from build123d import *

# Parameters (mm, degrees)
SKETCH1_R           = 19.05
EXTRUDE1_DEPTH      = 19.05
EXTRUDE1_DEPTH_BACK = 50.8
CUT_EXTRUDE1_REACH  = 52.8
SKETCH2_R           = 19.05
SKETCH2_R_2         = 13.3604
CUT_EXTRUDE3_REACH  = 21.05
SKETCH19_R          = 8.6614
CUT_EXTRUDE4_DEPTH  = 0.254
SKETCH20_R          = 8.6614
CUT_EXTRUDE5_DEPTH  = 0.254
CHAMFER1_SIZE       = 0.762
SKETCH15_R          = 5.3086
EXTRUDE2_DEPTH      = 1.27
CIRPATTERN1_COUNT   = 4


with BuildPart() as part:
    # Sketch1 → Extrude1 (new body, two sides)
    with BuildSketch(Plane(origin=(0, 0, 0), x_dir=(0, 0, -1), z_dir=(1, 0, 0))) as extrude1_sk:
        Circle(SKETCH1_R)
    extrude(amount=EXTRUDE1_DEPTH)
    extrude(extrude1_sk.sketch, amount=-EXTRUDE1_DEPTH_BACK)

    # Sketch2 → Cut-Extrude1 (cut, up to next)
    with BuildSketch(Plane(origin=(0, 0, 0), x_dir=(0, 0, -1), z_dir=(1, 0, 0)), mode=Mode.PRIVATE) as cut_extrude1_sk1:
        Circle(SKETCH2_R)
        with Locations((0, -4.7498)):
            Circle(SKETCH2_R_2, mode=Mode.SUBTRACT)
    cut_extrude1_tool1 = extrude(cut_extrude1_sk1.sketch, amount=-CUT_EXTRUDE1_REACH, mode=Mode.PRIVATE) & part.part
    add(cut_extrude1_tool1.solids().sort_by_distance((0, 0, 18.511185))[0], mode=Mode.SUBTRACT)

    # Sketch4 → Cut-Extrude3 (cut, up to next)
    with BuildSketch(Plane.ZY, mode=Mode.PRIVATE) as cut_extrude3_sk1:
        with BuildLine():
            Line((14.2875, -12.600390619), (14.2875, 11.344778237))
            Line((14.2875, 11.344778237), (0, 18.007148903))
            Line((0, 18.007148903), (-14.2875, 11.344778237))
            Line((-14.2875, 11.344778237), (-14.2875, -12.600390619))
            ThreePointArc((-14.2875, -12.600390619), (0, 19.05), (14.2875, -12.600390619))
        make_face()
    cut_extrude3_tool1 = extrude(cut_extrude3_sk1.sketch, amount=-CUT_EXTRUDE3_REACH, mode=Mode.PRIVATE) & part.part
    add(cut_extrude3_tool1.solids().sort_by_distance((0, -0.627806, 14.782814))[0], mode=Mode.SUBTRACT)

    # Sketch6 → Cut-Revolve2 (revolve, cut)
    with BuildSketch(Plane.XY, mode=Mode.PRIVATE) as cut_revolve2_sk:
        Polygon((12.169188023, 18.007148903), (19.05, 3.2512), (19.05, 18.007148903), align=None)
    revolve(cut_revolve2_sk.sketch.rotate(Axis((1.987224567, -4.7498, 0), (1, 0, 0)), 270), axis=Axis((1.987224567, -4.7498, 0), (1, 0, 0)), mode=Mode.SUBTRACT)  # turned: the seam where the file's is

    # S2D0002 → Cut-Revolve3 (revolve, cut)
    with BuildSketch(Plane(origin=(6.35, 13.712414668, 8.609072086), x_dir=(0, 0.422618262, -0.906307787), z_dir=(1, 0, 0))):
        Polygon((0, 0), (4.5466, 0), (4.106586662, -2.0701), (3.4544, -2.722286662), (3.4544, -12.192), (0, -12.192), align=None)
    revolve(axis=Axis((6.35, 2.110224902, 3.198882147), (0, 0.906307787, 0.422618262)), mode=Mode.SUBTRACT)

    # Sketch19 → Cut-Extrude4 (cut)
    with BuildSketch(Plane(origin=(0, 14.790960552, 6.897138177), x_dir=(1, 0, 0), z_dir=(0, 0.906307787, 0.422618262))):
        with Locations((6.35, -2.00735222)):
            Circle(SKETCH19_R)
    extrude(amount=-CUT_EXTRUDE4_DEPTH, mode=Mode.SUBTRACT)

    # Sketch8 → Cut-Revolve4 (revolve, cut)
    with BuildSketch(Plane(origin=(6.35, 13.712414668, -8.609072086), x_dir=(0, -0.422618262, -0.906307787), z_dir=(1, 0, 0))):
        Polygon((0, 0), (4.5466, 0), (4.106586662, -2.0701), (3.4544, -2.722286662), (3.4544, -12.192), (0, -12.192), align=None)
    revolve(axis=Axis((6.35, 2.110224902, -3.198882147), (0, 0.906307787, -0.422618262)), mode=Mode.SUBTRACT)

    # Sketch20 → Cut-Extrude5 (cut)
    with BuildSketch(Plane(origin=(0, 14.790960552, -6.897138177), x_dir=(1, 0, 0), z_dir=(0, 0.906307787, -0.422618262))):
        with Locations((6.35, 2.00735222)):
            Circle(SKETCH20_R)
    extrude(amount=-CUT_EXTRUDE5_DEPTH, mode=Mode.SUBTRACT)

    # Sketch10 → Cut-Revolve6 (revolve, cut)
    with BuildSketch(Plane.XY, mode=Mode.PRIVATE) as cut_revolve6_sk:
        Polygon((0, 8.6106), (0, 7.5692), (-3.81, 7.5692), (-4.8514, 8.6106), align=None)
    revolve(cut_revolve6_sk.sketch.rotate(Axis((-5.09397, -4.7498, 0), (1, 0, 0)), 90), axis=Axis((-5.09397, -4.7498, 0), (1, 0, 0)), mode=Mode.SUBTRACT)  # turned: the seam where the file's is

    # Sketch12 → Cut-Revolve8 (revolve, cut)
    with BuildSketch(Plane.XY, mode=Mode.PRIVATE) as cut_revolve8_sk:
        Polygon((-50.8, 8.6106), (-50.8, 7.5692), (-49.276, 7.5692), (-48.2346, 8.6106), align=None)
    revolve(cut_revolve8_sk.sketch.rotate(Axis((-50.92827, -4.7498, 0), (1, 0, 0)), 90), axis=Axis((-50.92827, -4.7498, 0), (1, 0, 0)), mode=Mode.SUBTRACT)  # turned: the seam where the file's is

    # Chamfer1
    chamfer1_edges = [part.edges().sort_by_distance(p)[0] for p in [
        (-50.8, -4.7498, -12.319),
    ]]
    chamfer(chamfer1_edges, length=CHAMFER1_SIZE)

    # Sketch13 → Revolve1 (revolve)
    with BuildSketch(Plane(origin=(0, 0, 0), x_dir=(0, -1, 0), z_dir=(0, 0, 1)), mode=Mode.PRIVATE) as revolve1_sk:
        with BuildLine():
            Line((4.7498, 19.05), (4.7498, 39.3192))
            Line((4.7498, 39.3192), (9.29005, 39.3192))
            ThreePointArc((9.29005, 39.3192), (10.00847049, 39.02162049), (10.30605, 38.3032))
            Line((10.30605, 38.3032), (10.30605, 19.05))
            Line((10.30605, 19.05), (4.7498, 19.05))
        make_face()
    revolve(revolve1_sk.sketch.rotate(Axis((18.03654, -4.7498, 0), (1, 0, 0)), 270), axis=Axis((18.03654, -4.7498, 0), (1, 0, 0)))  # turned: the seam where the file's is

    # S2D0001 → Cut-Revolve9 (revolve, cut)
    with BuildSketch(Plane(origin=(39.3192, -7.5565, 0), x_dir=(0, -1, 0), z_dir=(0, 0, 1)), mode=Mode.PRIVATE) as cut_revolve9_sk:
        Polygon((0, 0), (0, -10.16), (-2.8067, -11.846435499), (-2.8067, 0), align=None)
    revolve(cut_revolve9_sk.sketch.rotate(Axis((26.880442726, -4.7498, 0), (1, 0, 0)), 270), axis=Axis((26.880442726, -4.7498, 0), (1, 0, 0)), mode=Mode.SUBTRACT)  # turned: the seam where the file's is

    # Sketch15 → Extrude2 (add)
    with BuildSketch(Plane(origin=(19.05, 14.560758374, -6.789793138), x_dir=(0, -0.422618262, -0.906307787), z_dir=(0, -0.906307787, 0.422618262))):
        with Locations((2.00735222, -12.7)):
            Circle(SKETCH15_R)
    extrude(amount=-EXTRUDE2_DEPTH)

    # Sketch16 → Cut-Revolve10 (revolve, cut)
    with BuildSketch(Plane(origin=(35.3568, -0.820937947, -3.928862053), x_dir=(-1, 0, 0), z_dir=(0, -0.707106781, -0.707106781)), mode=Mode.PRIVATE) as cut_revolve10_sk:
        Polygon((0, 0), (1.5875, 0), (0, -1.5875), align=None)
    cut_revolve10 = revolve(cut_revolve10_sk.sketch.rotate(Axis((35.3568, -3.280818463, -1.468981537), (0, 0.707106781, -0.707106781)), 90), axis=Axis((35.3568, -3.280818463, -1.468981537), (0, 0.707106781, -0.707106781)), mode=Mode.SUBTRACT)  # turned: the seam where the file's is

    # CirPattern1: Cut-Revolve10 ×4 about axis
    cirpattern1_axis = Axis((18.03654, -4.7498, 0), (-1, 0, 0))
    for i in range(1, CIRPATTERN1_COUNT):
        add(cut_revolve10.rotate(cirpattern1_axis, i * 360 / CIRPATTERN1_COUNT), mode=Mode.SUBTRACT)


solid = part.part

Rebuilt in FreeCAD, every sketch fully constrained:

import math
import FreeCAD as App
import Part
import Sketcher
from FreeCAD import Vector
Q = App.Units.Quantity


def edges_at(feature, points):
    """Names of the edges that pass closest to the given points."""
    edges = feature.Shape.Edges
    near = lambda p: min(range(len(edges)), key=lambda i: edges[i].distToShape(Part.Vertex(*p))[0])
    return sorted({f"Edge{near(p) + 1}" for p in points})

doc = App.newDocument("Part")
body = doc.addObject("PartDesign::Body", "Body")

sketch1 = body.newObject("Sketcher::SketchObject", "Sketch")
sketch1.AttachmentSupport = (doc.getObject("YZ_Plane"), [""])
sketch1.MapMode = "FlatFace"
sketch1.addGeometry(Part.Circle(Vector(0, 0, 0), Vector(0, 0, 1), 19), False)
sketch1.addConstraint([
    Sketcher.Constraint("Coincident", 0, 3, -1, 1),
    Sketcher.Constraint("Diameter", 0, Q("1.5 in")),
])
pad1 = body.newObject("PartDesign::Pad", "Pad")
pad1.Profile = sketch1
pad1.Type = "TwoLengths"
pad1.Length = Q("0.75 in")
pad1.Length2 = Q("2 in")

sketch2 = body.newObject("Sketcher::SketchObject", "Sketch001")
sketch2.AttachmentSupport = (doc.getObject("YZ_Plane"), [""])
sketch2.MapMode = "FlatFace"
sketch2.addGeometry([
    Part.Circle(Vector(0, 0, 0), Vector(0, 0, 1), 19),
    Part.Circle(Vector(-5, 0, 0), Vector(0, 0, 1), 13),
], False)
sketch2.addConstraint([
    Sketcher.Constraint("Coincident", 0, 3, -1, 1),
    Sketcher.Constraint("PointOnObject", 1, 3, -1),
    Sketcher.Constraint("Diameter", 0, Q("1.5 in")),
    Sketcher.Constraint("Diameter", 1, Q("1.052 in")),
    Sketcher.Constraint("DistanceX", 1, 3, -1, 1, Q("0.187 in")),
])
pocket1 = body.newObject("PartDesign::Pocket", "Pocket")
pocket1.Profile = sketch2
pocket1.Type = "UpToFirst"

sketch3 = body.newObject("Sketcher::SketchObject", "Sketch002")
sketch3.AttachmentSupport = (doc.getObject("YZ_Plane"), [""])
sketch3.MapMode = "FlatFace"
sketch3.addGeometry([
    Part.LineSegment(Vector(11, 14, 0), Vector(-13, 14, 0)),
    Part.ArcOfCircle(Part.Circle(Vector(0, 0, 0), Vector(0, 0, 1), 19), math.radians(-131), math.radians(131)),
    Part.LineSegment(Vector(-13, -14, 0), Vector(11, -14, 0)),
    Part.LineSegment(Vector(11, -14, 0), Vector(18, 0, 0)),
    Part.LineSegment(Vector(18, 0, 0), Vector(11, 14, 0)),
], False)
sketch3.addConstraint([
    Sketcher.Constraint("Coincident", 0, 2, 1, 2),
    Sketcher.Constraint("Coincident", 1, 1, 2, 1),
    Sketcher.Constraint("Coincident", 2, 2, 3, 1),
    Sketcher.Constraint("Coincident", 3, 2, 4, 1),
    Sketcher.Constraint("Coincident", 4, 2, 0, 1),
    Sketcher.Constraint("Horizontal", 0),
    Sketcher.Constraint("Horizontal", 2),
    Sketcher.Constraint("Coincident", 1, 3, -1, 1),
    Sketcher.Constraint("Symmetric", 2, 2, 4, 2, -1),
    Sketcher.Constraint("PointOnObject", 3, 2, -1),
    Sketcher.Constraint("Radius", 1, Q("0.75 in")),
    Sketcher.Constraint("Angle", 3, Q("65 deg")),
    Sketcher.Constraint("DistanceY", -1, 1, 0, 2, Q("0.5625 in")),
    Sketcher.Constraint("DistanceX", 0, 2, 0, 1, Q("23.945169 mm")),
])
pocket2 = body.newObject("PartDesign::Pocket", "Pocket001")
pocket2.Profile = sketch3
pocket2.Type = "UpToFirst"
pocket2.Reversed = True

sketch4 = body.newObject("Sketcher::SketchObject", "Sketch003")
sketch4.AttachmentSupport = (doc.getObject("XY_Plane"), [""])
sketch4.MapMode = "FlatFace"
sketch4.addGeometry([
    Part.LineSegment(Vector(12, 18, 0), Vector(19, 3, 0)),
    Part.LineSegment(Vector(19, 3, 0), Vector(19, 18, 0)),
    Part.LineSegment(Vector(19, 18, 0), Vector(12, 18, 0)),
], False)
sketch4.addGeometry(Part.LineSegment(Vector(12, -5, 0), Vector(19, -5, 0)), True)
sketch4.addConstraint([
    Sketcher.Constraint("Coincident", 0, 2, 1, 1),
    Sketcher.Constraint("Coincident", 1, 2, 2, 1),
    Sketcher.Constraint("Coincident", 2, 2, 0, 1),
    Sketcher.Constraint("Vertical", 1),
    Sketcher.Constraint("Horizontal", 2),
    Sketcher.Constraint("Horizontal", 3),
    Sketcher.Constraint("Vertical", 2, 2, 3, 1),
    Sketcher.Constraint("Vertical", 1, 2, 3, 2),
    Sketcher.Constraint("Angle", 0, Q("-65 deg")),
    Sketcher.Constraint("DistanceX", -1, 1, 0, 2, Q("0.75 in")),
    Sketcher.Constraint("DistanceY", -1, 1, 0, 2, Q("0.128 in")),
    Sketcher.Constraint("DistanceY", 3, 1, -1, 1, Q("0.187 in")),
    Sketcher.Constraint("DistanceX", 2, 2, 2, 1, Q("6.880812 mm")),
])
groove = body.newObject("PartDesign::Groove", "Groove")
groove.Profile = sketch4
groove.ReferenceAxis = (sketch4, ["Axis0"])
groove.Angle = 360

sketch5 = body.newObject("Sketcher::SketchObject", "Sketch004")
sketch5.AttachmentSupport = (doc.getObject("YZ_Plane"), [""])
sketch5.MapMode = "FlatFace"
sketch5.AttachmentOffset = App.Placement(Vector(0, 0, 0.25 * 25.4), App.Rotation())
sketch5.addGeometry([
    Part.LineSegment(Vector(15.6, 4.5, 0), Vector(13.7, 8.6, 0)),
    Part.LineSegment(Vector(13.7, 8.6, 0), Vector(2.7, 3.5, 0)),
    Part.LineSegment(Vector(2.7, 3.5, 0), Vector(4.1, 0.3, 0)),
    Part.LineSegment(Vector(4.1, 0.3, 0), Vector(12.7, 4.3, 0)),
    Part.LineSegment(Vector(12.7, 4.3, 0), Vector(13.6, 4, 0)),
    Part.LineSegment(Vector(13.6, 4, 0), Vector(15.6, 4.5, 0)),
], False)
sketch5.addGeometry(Part.LineSegment(Vector(2.7, 3.5, 0), Vector(13.7, 8.6, 0)), True)
sketch5.addConstraint([
    Sketcher.Constraint("Coincident", 0, 2, 1, 1),
    Sketcher.Constraint("Coincident", 1, 2, 2, 1),
    Sketcher.Constraint("Coincident", 2, 2, 3, 1),
    Sketcher.Constraint("Coincident", 3, 2, 4, 1),
    Sketcher.Constraint("Coincident", 4, 2, 5, 1),
    Sketcher.Constraint("Coincident", 5, 2, 0, 1),
    Sketcher.Constraint("Coincident", 6, 1, 1, 2),
    Sketcher.Constraint("Coincident", 6, 2, 0, 2),
    Sketcher.Constraint("Perpendicular", 0, 1),
    Sketcher.Constraint("Perpendicular", 1, 2),
    Sketcher.Constraint("Perpendicular", 2, 3),
    Sketcher.Constraint("Angle", 0, Q("115 deg")),
    Sketcher.Constraint("Angle", 4, Q("-20 deg")),
    Sketcher.Constraint("Angle", 5, Q("13 deg")),
    Sketcher.Constraint("Distance", 1, Q("0.48 in")),
    Sketcher.Constraint("Distance", 0, Q("0.179 in")),
    Sketcher.Constraint("Distance", 2, Q("0.136 in")),
    Sketcher.Constraint("DistanceX", -1, 1, 3, 2, Q("0.5001999 in")),
    Sketcher.Constraint("Distance", 4, Q("0.922331 mm")),
    Sketcher.Constraint("DistanceY", -1, 1, 1, 2, Q("3.45651 mm")),
])
groove2 = body.newObject("PartDesign::Groove", "Groove001")
groove2.Profile = sketch5
groove2.ReferenceAxis = (sketch5, ["Axis0"])
groove2.Angle = 360

sketch6 = body.newObject("Sketcher::SketchObject", "Sketch005")
sketch6.Placement = App.Placement(Vector(0, 14.790961, 6.897138), App.Rotation(Vector(1, 0, 0), Vector(0, 0.422618262, -0.906307787), Vector(0, 0.906307787, 0.422618262), "ZXY"))
sketch6.addGeometry(Part.Circle(Vector(6, -2, 0), Vector(0, 0, 1), 9), False)
sketch6.addConstraint([
    Sketcher.Constraint("Diameter", 0, Q("0.682 in")),
    Sketcher.Constraint("DistanceX", -1, 1, 0, 3, Q("0.25 in")),
    Sketcher.Constraint("DistanceY", 0, 3, -1, 1, Q("2.007352 mm")),
])
pocket3 = body.newObject("PartDesign::Pocket", "Pocket002")
pocket3.Profile = sketch6
pocket3.Length = Q("0.01 in")

sketch7 = body.newObject("Sketcher::SketchObject", "Sketch006")
sketch7.AttachmentSupport = (doc.getObject("YZ_Plane"), [""])
sketch7.MapMode = "FlatFace"
sketch7.AttachmentOffset = App.Placement(Vector(0, 0, 0.25 * 25.4), App.Rotation())
sketch7.addGeometry([
    Part.LineSegment(Vector(11.8, -12.7, 0), Vector(13.7, -8.6, 0)),
    Part.LineSegment(Vector(13.7, -8.6, 0), Vector(2.7, -3.5, 0)),
    Part.LineSegment(Vector(2.7, -3.5, 0), Vector(1.2, -6.6, 0)),
    Part.LineSegment(Vector(1.2, -6.6, 0), Vector(9.8, -10.6, 0)),
    Part.LineSegment(Vector(9.8, -10.6, 0), Vector(10.1, -11.5, 0)),
    Part.LineSegment(Vector(10.1, -11.5, 0), Vector(11.8, -12.7, 0)),
], False)
sketch7.addGeometry(Part.LineSegment(Vector(2.7, -3.5, 0), Vector(13.7, -8.6, 0)), True)
sketch7.addConstraint([
    Sketcher.Constraint("Coincident", 0, 2, 1, 1),
    Sketcher.Constraint("Coincident", 1, 2, 2, 1),
    Sketcher.Constraint("Coincident", 2, 2, 3, 1),
    Sketcher.Constraint("Coincident", 3, 2, 4, 1),
    Sketcher.Constraint("Coincident", 4, 2, 5, 1),
    Sketcher.Constraint("Coincident", 5, 2, 0, 1),
    Sketcher.Constraint("Coincident", 6, 1, 1, 2),
    Sketcher.Constraint("Coincident", 6, 2, 0, 2),
    Sketcher.Constraint("Perpendicular", 0, 1),
    Sketcher.Constraint("Perpendicular", 1, 2),
    Sketcher.Constraint("Perpendicular", 2, 3),
    Sketcher.Constraint("Angle", 0, Q("65 deg")),
    Sketcher.Constraint("Angle", 4, Q("-70 deg")),
    Sketcher.Constraint("Angle", 5, Q("-37 deg")),
    Sketcher.Constraint("Distance", 1, Q("0.48 in")),
    Sketcher.Constraint("Distance", 0, Q("0.179 in")),
    Sketcher.Constraint("Distance", 2, Q("0.136 in")),
    Sketcher.Constraint("Distance", 4, Q("0.922331 mm")),
    Sketcher.Constraint("DistanceX", -1, 1, 1, 2, Q("2.66271 mm")),
    Sketcher.Constraint("DistanceY", 1, 2, -1, 1, Q("3.45651 mm")),
])
groove3 = body.newObject("PartDesign::Groove", "Groove002")
groove3.Profile = sketch7
groove3.ReferenceAxis = (sketch7, ["Axis0"])
groove3.Angle = 360

sketch8 = body.newObject("Sketcher::SketchObject", "Sketch007")
sketch8.Placement = App.Placement(Vector(0, 14.790961, -6.897138), App.Rotation(Vector(1, 0, 0), Vector(0, -0.422618262, -0.906307787), Vector(0, 0.906307787, -0.422618262), "ZXY"))
sketch8.addGeometry(Part.Circle(Vector(6, 2, 0), Vector(0, 0, 1), 9), False)
sketch8.addConstraint([
    Sketcher.Constraint("Diameter", 0, Q("0.682 in")),
    Sketcher.Constraint("DistanceX", -1, 1, 0, 3, Q("0.25 in")),
    Sketcher.Constraint("DistanceY", -1, 1, 0, 3, Q("2.007352 mm")),
])
pocket4 = body.newObject("PartDesign::Pocket", "Pocket003")
pocket4.Profile = sketch8
pocket4.Length = Q("0.01 in")

sketch9 = body.newObject("Sketcher::SketchObject", "Sketch008")
sketch9.AttachmentSupport = (doc.getObject("XY_Plane"), [""])
sketch9.MapMode = "FlatFace"
sketch9.addGeometry([
    Part.LineSegment(Vector(0, 7.6, 0), Vector(0, 8.6, 0)),
    Part.LineSegment(Vector(0, 8.6, 0), Vector(-4.9, 8.6, 0)),
    Part.LineSegment(Vector(-4.9, 8.6, 0), Vector(-3.8, 7.6, 0)),
    Part.LineSegment(Vector(-3.8, 7.6, 0), Vector(0, 7.6, 0)),
], False)
sketch9.addGeometry(Part.LineSegment(Vector(-4.9, -4.7, 0), Vector(0, -4.7, 0)), True)
sketch9.addConstraint([
    Sketcher.Constraint("Coincident", 0, 2, 1, 1),
    Sketcher.Constraint("Coincident", 1, 2, 2, 1),
    Sketcher.Constraint("Coincident", 2, 2, 3, 1),
    Sketcher.Constraint("Coincident", 3, 2, 0, 1),
    Sketcher.Constraint("Vertical", 0),
    Sketcher.Constraint("Horizontal", 1),
    Sketcher.Constraint("Horizontal", 3),
    Sketcher.Constraint("Horizontal", 4),
    Sketcher.Constraint("PointOnObject", 0, 2, -2),
    Sketcher.Constraint("PointOnObject", 4, 2, -2),
    Sketcher.Constraint("Vertical", 1, 2, 4, 1),
    Sketcher.Constraint("Angle", 2, Q("-45 deg")),
    Sketcher.Constraint("DistanceX", 3, 1, 3, 2, Q("0.15 in")),
    Sketcher.Constraint("DistanceX", 1, 2, 1, 1, Q("0.191 in")),
    Sketcher.Constraint("DistanceY", -1, 1, 0, 2, Q("0.339 in")),
    Sketcher.Constraint("DistanceY", 4, 1, -1, 1, Q("0.187 in")),
])
groove4 = body.newObject("PartDesign::Groove", "Groove003")
groove4.Profile = sketch9
groove4.ReferenceAxis = (sketch9, ["Axis0"])
groove4.Angle = 360

sketch10 = body.newObject("Sketcher::SketchObject", "Sketch009")
sketch10.AttachmentSupport = (doc.getObject("XY_Plane"), [""])
sketch10.MapMode = "FlatFace"
sketch10.addGeometry([
    Part.LineSegment(Vector(-50.8, 8.6, 0), Vector(-50.8, 7.6, 0)),
    Part.LineSegment(Vector(-50.8, 7.6, 0), Vector(-49.3, 7.6, 0)),
    Part.LineSegment(Vector(-49.3, 7.6, 0), Vector(-48.2, 8.6, 0)),
    Part.LineSegment(Vector(-48.2, 8.6, 0), Vector(-50.8, 8.6, 0)),
], False)
sketch10.addGeometry(Part.LineSegment(Vector(-50.8, -4.7, 0), Vector(-48.2, -4.7, 0)), True)
sketch10.addConstraint([
    Sketcher.Constraint("Coincident", 0, 2, 1, 1),
    Sketcher.Constraint("Coincident", 1, 2, 2, 1),
    Sketcher.Constraint("Coincident", 2, 2, 3, 1),
    Sketcher.Constraint("Coincident", 3, 2, 0, 1),
    Sketcher.Constraint("Vertical", 0),
    Sketcher.Constraint("Horizontal", 1),
    Sketcher.Constraint("Horizontal", 3),
    Sketcher.Constraint("Horizontal", 4),
    Sketcher.Constraint("Vertical", 3, 2, 4, 1),
    Sketcher.Constraint("Vertical", 2, 2, 4, 2),
    Sketcher.Constraint("DistanceX", 0, 2, -1, 1, Q("2 in")),
    Sketcher.Constraint("Angle", 2, Q("45 deg")),
    Sketcher.Constraint("DistanceX", 1, 1, 1, 2, Q("0.06 in")),
    Sketcher.Constraint("DistanceX", 3, 2, 3, 1, Q("0.101 in")),
    Sketcher.Constraint("DistanceY", -1, 1, 0, 2, Q("0.298 in")),
    Sketcher.Constraint("DistanceY", 4, 1, -1, 1, Q("0.187 in")),
])
groove5 = body.newObject("PartDesign::Groove", "Groove004")
groove5.Profile = sketch10
groove5.ReferenceAxis = (sketch10, ["Axis0"])
groove5.Angle = 360
doc.recompute()

chamfer = body.newObject("PartDesign::Chamfer", "Chamfer")
chamfer.Base = (groove5, edges_at(groove5, [(-50.8, -4.75, -12.319)]))
chamfer.Size = Q("0.03 in")

sketch11 = body.newObject("Sketcher::SketchObject", "Sketch010")
sketch11.AttachmentSupport = (doc.getObject("XY_Plane"), [""])
sketch11.MapMode = "FlatFace"
sketch11.addGeometry([
    Part.LineSegment(Vector(39.3, -4.7, 0), Vector(19.1, -4.7, 0)),
    Part.LineSegment(Vector(19.1, -4.7, 0), Vector(19.1, -10.3, 0)),
    Part.LineSegment(Vector(19.1, -10.3, 0), Vector(38.3, -10.3, 0)),
    Part.ArcOfCircle(Part.Circle(Vector(38.3, -9.3, 0), Vector(0, 0, 1), 1), math.radians(-90), math.radians(0)),
    Part.LineSegment(Vector(39.3, -9.3, 0), Vector(39.3, -4.7, 0)),
], False)
sketch11.addGeometry(Part.LineSegment(Vector(19.1, -4.7, 0), Vector(39.3, -4.7, 0)), True)
sketch11.addConstraint([
    Sketcher.Constraint("Coincident", 0, 2, 1, 1),
    Sketcher.Constraint("Coincident", 1, 2, 2, 1),
    Sketcher.Constraint("Tangent", 2, 2, 3, 1),
    Sketcher.Constraint("Tangent", 3, 2, 4, 1),
    Sketcher.Constraint("Coincident", 4, 2, 0, 1),
    Sketcher.Constraint("Horizontal", 0),
    Sketcher.Constraint("Vertical", 1),
    Sketcher.Constraint("Horizontal", 2),
    Sketcher.Constraint("Vertical", 4),
    Sketcher.Constraint("Horizontal", 5),
    Sketcher.Constraint("Coincident", 5, 1, 0, 2),
    Sketcher.Constraint("Vertical", 3, 2, 5, 2),
    Sketcher.Constraint("Radius", 3, Q("0.04 in")),
    Sketcher.Constraint("DistanceX", 0, 2, 0, 1, Q("0.798 in")),
    Sketcher.Constraint("DistanceY", 1, 2, 1, 1, Q("0.21875 in")),
    Sketcher.Constraint("DistanceX", -1, 1, 0, 2, Q("0.75 in")),
    Sketcher.Constraint("DistanceY", 0, 2, -1, 1, Q("0.187 in")),
])
revolution = body.newObject("PartDesign::Revolution", "Revolution")
revolution.Profile = sketch11
revolution.ReferenceAxis = (sketch11, ["Axis0"])
revolution.Angle = 360

sketch12 = body.newObject("Sketcher::SketchObject", "Sketch011")
sketch12.AttachmentSupport = (doc.getObject("XY_Plane"), [""])
sketch12.MapMode = "FlatFace"
sketch12.addGeometry([
    Part.LineSegment(Vector(29.2, -7.6, 0), Vector(39.3, -7.6, 0)),
    Part.LineSegment(Vector(39.3, -7.6, 0), Vector(39.3, -4.7, 0)),
    Part.LineSegment(Vector(39.3, -4.7, 0), Vector(27.5, -4.7, 0)),
    Part.LineSegment(Vector(27.5, -4.7, 0), Vector(29.2, -7.6, 0)),
], False)
sketch12.addGeometry(Part.LineSegment(Vector(27.5, -4.7, 0), Vector(39.3, -4.7, 0)), True)
sketch12.addConstraint([
    Sketcher.Constraint("Coincident", 0, 2, 1, 1),
    Sketcher.Constraint("Coincident", 1, 2, 2, 1),
    Sketcher.Constraint("Coincident", 2, 2, 3, 1),
    Sketcher.Constraint("Coincident", 3, 2, 0, 1),
    Sketcher.Constraint("Horizontal", 0),
    Sketcher.Constraint("Vertical", 1),
    Sketcher.Constraint("Horizontal", 2),
    Sketcher.Constraint("Horizontal", 4),
    Sketcher.Constraint("Coincident", 4, 1, 2, 2),
    Sketcher.Constraint("Vertical", 0, 2, 4, 2),
    Sketcher.Constraint("DistanceX", 0, 1, 0, 2, Q("0.4 in")),
    Sketcher.Constraint("Angle", 3, Q("-59 deg")),
    Sketcher.Constraint("DistanceY", 1, 1, 1, 2, Q("0.1105 in")),
    Sketcher.Constraint("DistanceX", -1, 1, 0, 2, Q("1.548 in")),
    Sketcher.Constraint("DistanceY", 1, 2, -1, 1, Q("0.187 in")),
])
groove6 = body.newObject("PartDesign::Groove", "Groove005")
groove6.Profile = sketch12
groove6.ReferenceAxis = (sketch12, ["Axis0"])
groove6.Angle = 360

sketch13 = body.newObject("Sketcher::SketchObject", "Sketch012")
sketch13.Placement = App.Placement(Vector(19.05, 14.560758, -6.789793), App.Rotation(Vector(0, -0.422618262, -0.906307787), Vector(1, 0, 0), Vector(0, -0.906307787, 0.422618262), "ZXY"))
sketch13.addGeometry(Part.Circle(Vector(2, -13, 0), Vector(0, 0, 1), 5), False)
sketch13.addConstraint([
    Sketcher.Constraint("Diameter", 0, Q("0.418 in")),
    Sketcher.Constraint("DistanceY", 0, 3, -1, 1, Q("0.5 in")),
    Sketcher.Constraint("DistanceX", -1, 1, 0, 3, Q("2.007352 mm")),
])
pad2 = body.newObject("PartDesign::Pad", "Pad001")
pad2.Profile = sketch13
pad2.Length = Q("0.05 in")
pad2.Reversed = True

sketch14 = body.newObject("Sketcher::SketchObject", "Sketch013")
sketch14.Placement = App.Placement(Vector(35.3568, -0.820938, -3.928862), App.Rotation(Vector(-1, 0, 0), Vector(0, 0.707106781, -0.707106781), Vector(0, -0.707106781, -0.707106781), "ZXY"))
sketch14.addGeometry([
    Part.LineSegment(Vector(1.6, 0, 0), Vector(0, 0, 0)),
    Part.LineSegment(Vector(0, 0, 0), Vector(0, -1.6, 0)),
    Part.LineSegment(Vector(0, -1.6, 0), Vector(1.6, 0, 0)),
], False)
sketch14.addConstraint([
    Sketcher.Constraint("Coincident", 0, 2, 1, 1),
    Sketcher.Constraint("Coincident", 1, 2, 2, 1),
    Sketcher.Constraint("Coincident", 2, 2, 0, 1),
    Sketcher.Constraint("Horizontal", 0),
    Sketcher.Constraint("Vertical", 1),
    Sketcher.Constraint("Coincident", 0, 2, -1, 1),
    Sketcher.Constraint("Equal", 0, 1),
    Sketcher.Constraint("DistanceX", 0, 2, 0, 1, Q("0.0625 in")),
])
groove7 = body.newObject("PartDesign::Groove", "Groove006")
groove7.Profile = sketch14
groove7.ReferenceAxis = (sketch14, ["V_Axis"])
groove7.Angle = 360
doc.recompute()

datumline = body.newObject("PartDesign::Line", "DatumLine")
datumline.Placement = App.Placement(Vector(0, -4.7498, 0), App.Rotation(Vector(0, 0, 1), Vector(-1, 0, 0)))
polarpattern = body.newObject("PartDesign::PolarPattern", "PolarPattern")
polarpattern.Originals = [groove7]
polarpattern.Axis = (datumline, [""])
polarpattern.Angle = 360
polarpattern.Occurrences = 4
body.Tip = polarpattern

doc.recompute()
